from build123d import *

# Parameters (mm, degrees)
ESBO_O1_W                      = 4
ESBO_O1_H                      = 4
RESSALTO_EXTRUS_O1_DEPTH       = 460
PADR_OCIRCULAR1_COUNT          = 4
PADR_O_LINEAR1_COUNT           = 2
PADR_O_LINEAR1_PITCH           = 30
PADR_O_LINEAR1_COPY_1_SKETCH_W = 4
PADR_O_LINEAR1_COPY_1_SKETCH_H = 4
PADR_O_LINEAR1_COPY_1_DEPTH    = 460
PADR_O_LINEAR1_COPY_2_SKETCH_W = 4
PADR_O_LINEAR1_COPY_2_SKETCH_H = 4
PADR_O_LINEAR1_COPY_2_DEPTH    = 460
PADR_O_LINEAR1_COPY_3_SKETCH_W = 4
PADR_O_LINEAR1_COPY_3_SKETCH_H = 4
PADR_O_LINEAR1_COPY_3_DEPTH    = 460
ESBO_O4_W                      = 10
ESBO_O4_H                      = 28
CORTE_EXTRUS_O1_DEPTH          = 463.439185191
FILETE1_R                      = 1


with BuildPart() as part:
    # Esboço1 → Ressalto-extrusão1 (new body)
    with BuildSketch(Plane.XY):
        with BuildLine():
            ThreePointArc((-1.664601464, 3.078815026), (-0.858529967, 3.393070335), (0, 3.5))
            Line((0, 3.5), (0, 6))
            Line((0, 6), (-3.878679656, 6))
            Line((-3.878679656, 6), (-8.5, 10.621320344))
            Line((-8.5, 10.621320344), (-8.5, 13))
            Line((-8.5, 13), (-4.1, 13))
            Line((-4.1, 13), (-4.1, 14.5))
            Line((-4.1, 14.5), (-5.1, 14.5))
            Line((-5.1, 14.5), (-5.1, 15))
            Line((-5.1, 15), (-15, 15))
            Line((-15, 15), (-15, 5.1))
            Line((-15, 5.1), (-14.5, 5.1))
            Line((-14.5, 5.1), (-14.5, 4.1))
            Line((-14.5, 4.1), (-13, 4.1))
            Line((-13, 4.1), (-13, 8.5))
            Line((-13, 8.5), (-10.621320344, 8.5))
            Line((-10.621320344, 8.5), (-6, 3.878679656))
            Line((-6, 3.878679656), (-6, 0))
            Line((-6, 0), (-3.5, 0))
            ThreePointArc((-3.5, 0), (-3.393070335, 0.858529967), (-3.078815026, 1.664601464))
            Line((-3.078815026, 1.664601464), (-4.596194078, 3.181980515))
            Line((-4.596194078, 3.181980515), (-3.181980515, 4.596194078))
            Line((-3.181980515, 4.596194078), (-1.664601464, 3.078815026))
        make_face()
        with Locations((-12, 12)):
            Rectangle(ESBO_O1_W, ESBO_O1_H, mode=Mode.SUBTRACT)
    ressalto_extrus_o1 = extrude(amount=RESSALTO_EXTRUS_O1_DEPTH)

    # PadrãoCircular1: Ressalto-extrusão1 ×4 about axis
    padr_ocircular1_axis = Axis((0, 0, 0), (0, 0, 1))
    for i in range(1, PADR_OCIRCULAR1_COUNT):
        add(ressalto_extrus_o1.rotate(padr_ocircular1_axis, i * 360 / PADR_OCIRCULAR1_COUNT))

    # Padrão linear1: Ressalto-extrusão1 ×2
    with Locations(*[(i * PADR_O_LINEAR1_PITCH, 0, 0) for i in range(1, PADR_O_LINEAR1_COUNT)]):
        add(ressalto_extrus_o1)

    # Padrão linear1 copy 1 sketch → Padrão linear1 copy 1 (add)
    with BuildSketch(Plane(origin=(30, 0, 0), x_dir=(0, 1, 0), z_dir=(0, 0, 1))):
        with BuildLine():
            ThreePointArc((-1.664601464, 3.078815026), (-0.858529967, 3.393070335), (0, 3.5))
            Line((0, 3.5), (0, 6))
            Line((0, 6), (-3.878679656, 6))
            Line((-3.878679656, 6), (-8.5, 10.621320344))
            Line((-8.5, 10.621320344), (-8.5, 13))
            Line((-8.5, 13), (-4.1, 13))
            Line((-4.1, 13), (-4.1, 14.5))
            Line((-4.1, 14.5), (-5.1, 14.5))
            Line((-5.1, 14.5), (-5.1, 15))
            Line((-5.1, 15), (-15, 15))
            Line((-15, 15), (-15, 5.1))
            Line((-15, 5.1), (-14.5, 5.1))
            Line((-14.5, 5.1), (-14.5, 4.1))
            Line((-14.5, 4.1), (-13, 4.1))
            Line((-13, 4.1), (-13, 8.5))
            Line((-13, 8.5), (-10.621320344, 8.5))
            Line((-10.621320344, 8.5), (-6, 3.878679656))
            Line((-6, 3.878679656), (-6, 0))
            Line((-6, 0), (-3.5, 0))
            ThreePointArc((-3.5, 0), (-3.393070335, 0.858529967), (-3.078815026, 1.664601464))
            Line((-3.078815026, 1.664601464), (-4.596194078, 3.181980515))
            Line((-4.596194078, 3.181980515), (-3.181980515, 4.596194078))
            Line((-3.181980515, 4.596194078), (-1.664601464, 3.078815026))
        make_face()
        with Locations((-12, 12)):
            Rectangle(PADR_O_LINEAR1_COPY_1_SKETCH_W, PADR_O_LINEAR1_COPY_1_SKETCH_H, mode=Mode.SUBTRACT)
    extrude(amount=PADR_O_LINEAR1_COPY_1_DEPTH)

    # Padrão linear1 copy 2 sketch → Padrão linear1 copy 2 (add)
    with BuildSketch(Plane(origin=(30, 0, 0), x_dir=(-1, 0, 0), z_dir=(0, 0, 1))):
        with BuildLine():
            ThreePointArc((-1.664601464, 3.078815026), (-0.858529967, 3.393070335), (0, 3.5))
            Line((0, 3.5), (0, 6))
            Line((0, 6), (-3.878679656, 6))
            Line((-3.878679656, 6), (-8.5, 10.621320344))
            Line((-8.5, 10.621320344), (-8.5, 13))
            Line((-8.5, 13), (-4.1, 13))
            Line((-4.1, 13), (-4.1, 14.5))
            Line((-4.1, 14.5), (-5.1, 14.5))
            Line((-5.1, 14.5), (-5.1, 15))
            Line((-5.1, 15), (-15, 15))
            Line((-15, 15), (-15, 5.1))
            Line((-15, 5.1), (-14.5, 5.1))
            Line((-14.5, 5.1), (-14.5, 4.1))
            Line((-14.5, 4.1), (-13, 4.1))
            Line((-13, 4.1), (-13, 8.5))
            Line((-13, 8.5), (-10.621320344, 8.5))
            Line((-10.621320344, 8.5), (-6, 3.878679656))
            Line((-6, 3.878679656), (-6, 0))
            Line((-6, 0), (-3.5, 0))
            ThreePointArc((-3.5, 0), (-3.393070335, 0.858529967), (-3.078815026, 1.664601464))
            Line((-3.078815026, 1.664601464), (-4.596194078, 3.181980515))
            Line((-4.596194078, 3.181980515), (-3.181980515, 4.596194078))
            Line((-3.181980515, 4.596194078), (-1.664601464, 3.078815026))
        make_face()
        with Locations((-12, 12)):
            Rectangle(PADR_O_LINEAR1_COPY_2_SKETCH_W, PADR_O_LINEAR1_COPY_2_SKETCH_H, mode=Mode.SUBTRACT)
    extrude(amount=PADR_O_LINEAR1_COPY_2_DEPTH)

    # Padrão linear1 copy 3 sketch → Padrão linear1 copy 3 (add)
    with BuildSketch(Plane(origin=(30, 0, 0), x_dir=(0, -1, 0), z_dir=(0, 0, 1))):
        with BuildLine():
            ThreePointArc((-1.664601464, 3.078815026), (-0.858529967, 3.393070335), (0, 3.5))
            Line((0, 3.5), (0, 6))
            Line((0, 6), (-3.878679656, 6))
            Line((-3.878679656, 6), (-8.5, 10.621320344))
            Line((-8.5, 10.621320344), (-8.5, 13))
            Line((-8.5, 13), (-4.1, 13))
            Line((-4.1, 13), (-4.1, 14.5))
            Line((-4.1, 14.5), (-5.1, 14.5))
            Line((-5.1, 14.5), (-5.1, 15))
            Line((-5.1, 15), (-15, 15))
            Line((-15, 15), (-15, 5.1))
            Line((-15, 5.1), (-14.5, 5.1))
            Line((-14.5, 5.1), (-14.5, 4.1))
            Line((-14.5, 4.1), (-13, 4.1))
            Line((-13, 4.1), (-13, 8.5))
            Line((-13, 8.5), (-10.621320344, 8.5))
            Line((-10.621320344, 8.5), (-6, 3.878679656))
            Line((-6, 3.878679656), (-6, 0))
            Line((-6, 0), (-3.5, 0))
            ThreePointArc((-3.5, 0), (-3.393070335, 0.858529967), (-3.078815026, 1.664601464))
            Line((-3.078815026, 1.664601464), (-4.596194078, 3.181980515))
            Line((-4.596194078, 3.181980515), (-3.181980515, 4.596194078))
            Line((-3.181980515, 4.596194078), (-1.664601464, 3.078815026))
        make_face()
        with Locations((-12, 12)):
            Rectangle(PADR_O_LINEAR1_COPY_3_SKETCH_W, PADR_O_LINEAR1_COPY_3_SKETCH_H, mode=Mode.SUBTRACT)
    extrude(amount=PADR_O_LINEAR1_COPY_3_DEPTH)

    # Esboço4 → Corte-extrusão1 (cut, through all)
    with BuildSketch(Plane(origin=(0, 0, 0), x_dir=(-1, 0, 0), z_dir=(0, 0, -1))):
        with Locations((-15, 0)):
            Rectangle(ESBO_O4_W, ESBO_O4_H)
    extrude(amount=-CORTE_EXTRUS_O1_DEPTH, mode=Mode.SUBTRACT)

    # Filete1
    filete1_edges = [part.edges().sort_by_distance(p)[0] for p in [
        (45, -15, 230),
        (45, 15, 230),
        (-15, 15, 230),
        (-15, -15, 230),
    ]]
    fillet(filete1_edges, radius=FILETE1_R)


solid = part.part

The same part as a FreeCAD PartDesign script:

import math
import FreeCAD as App
import Part
import Sketcher
from FreeCAD import Vector
Q = App.Units.Quantity


def edges_at(feature, points):
    """Names of the edges that pass closest to the given points."""
    edges = feature.Shape.Edges
    near = lambda p: min(range(len(edges)), key=lambda i: edges[i].distToShape(Part.Vertex(*p))[0])
    return sorted({f"Edge{near(p) + 1}" for p in points})


def add_polygon(sketch, points):
    """Adds a closed chain of lines whose ends are joined by coincident constraints."""
    first, n = sketch.GeometryCount, len(points)
    for a, b in zip(points, points[1:] + points[:1]):
        sketch.addGeometry(Part.LineSegment(App.Vector(*a, 0), App.Vector(*b, 0)), False)
    for i in range(n):
        sketch.addConstraint(Sketcher.Constraint("Coincident", first + i, 2, first + (i + 1) % n, 1))

doc = App.newDocument("Part")
body = doc.addObject("PartDesign::Body", "Body")

sketch1 = body.newObject("Sketcher::SketchObject", "Sketch")
sketch1.AttachmentSupport = (doc.getObject("XY_Plane"), [""])
sketch1.MapMode = "FlatFace"
sketch1.addGeometry(Part.ArcOfCircle(Part.Circle(Vector(0, 0, 0), Vector(0, 0, 1), 3.5), math.radians(90), math.radians(118)), False)
sketch1.addGeometry(Part.LineSegment(Vector(0, 3.5, 0), Vector(0, 6, 0)), False)
sketch1.addGeometry(Part.LineSegment(Vector(0, 6, 0), Vector(-3.9, 6, 0)), False)
sketch1.addGeometry(Part.LineSegment(Vector(-3.9, 6, 0), Vector(-8.5, 10.6, 0)), False)
sketch1.addGeometry(Part.LineSegment(Vector(-8.5, 10.6, 0), Vector(-8.5, 13, 0)), False)
sketch1.addGeometry(Part.LineSegment(Vector(-8.5, 13, 0), Vector(-4.1, 13, 0)), False)
sketch1.addGeometry(Part.LineSegment(Vector(-4.1, 13, 0), Vector(-4.1, 14.5, 0)), False)
sketch1.addGeometry(Part.LineSegment(Vector(-4.1, 14.5, 0), Vector(-5.1, 14.5, 0)), False)
sketch1.addGeometry(Part.LineSegment(Vector(-5.1, 14.5, 0), Vector(-5.1, 15, 0)), False)
sketch1.addGeometry(Part.LineSegment(Vector(-5.1, 15, 0), Vector(-15, 15, 0)), False)
sketch1.addGeometry(Part.LineSegment(Vector(-15, 15, 0), Vector(-15, 5.1, 0)), False)
sketch1.addGeometry(Part.LineSegment(Vector(-15, 5.1, 0), Vector(-14.5, 5.1, 0)), False)
sketch1.addGeometry(Part.LineSegment(Vector(-14.5, 5.1, 0), Vector(-14.5, 4.1, 0)), False)
sketch1.addGeometry(Part.LineSegment(Vector(-14.5, 4.1, 0), Vector(-13, 4.1, 0)), False)
sketch1.addGeometry(Part.LineSegment(Vector(-13, 4.1, 0), Vector(-13, 8.5, 0)), False)
sketch1.addGeometry(Part.LineSegment(Vector(-13, 8.5, 0), Vector(-10.6, 8.5, 0)), False)
sketch1.addGeometry(Part.LineSegment(Vector(-10.6, 8.5, 0), Vector(-6, 3.9, 0)), False)
sketch1.addGeometry(Part.LineSegment(Vector(-6, 3.9, 0), Vector(-6, 0, 0)), False)
sketch1.addGeometry(Part.LineSegment(Vector(-6, 0, 0), Vector(-3.5, 0, 0)), False)
sketch1.addGeometry(Part.ArcOfCircle(Part.Circle(Vector(0, 0, 0), Vector(0, 0, 1), 3.5), math.radians(152), math.radians(180)), False)
sketch1.addGeometry(Part.LineSegment(Vector(-3.1, 1.7, 0), Vector(-4.6, 3.2, 0)), False)
sketch1.addGeometry(Part.LineSegment(Vector(-4.6, 3.2, 0), Vector(-3.2, 4.6, 0)), False)
sketch1.addGeometry(Part.LineSegment(Vector(-3.2, 4.6, 0), Vector(-1.7, 3.1, 0)), False)
add_polygon(sketch1, [(-10, 10), (-14, 10), (-14, 14), (-10, 14)])
sketch1.addConstraint([
    Sketcher.Constraint("Coincident", 0, 1, 1, 1),
    Sketcher.Constraint("Coincident", 1, 2, 2, 1),
    Sketcher.Constraint("Coincident", 2, 2, 3, 1),
    Sketcher.Constraint("Coincident", 3, 2, 4, 1),
    Sketcher.Constraint("Coincident", 4, 2, 5, 1),
    Sketcher.Constraint("Coincident", 5, 2, 6, 1),
    Sketcher.Constraint("Coincident", 6, 2, 7, 1),
    Sketcher.Constraint("Coincident", 7, 2, 8, 1),
    Sketcher.Constraint("Coincident", 8, 2, 9, 1),
    Sketcher.Constraint("Coincident", 9, 2, 10, 1),
    Sketcher.Constraint("Coincident", 10, 2, 11, 1),
    Sketcher.Constraint("Coincident", 11, 2, 12, 1),
    Sketcher.Constraint("Coincident", 12, 2, 13, 1),
    Sketcher.Constraint("Coincident", 13, 2, 14, 1),
    Sketcher.Constraint("Coincident", 14, 2, 15, 1),
    Sketcher.Constraint("Coincident", 15, 2, 16, 1),
    Sketcher.Constraint("Coincident", 16, 2, 17, 1),
    Sketcher.Constraint("Coincident", 17, 2, 18, 1),
    Sketcher.Constraint("Coincident", 18, 2, 19, 2),
    Sketcher.Constraint("Coincident", 19, 1, 20, 1),
    Sketcher.Constraint("Coincident", 20, 2, 21, 1),
    Sketcher.Constraint("Coincident", 21, 2, 22, 1),
    Sketcher.Constraint("Coincident", 22, 2, 0, 2),
    Sketcher.Constraint("Vertical", 1),
    Sketcher.Constraint("Horizontal", 2),
    Sketcher.Constraint("Vertical", 4),
    Sketcher.Constraint("Horizontal", 5),
    Sketcher.Constraint("Vertical", 6),
    Sketcher.Constraint("Horizontal", 7),
    Sketcher.Constraint("Vertical", 8),
    Sketcher.Constraint("Horizontal", 9),
    Sketcher.Constraint("Vertical", 10),
    Sketcher.Constraint("Horizontal", 11),
    Sketcher.Constraint("Vertical", 12),
    Sketcher.Constraint("Horizontal", 13),
    Sketcher.Constraint("Vertical", 14),
    Sketcher.Constraint("Horizontal", 15),
    Sketcher.Constraint("Vertical", 17),
    Sketcher.Constraint("Horizontal", 18),
    Sketcher.Constraint("Horizontal", 23),
    Sketcher.Constraint("Vertical", 24),
    Sketcher.Constraint("Horizontal", 25),
    Sketcher.Constraint("Vertical", 26),
    Sketcher.Constraint("Coincident", 0, 3, -1, 1),
    Sketcher.Constraint("Coincident", 19, 3, -1, 1),
    Sketcher.Constraint("Equal", 0, 19),
    Sketcher.Constraint("PointOnObject", 0, 1, -2),
    Sketcher.Constraint("PointOnObject", 17, 2, -1),
    Sketcher.Constraint("Parallel", 3, 16),
    Sketcher.Constraint("Parallel", 16, 20),
    Sketcher.Constraint("Perpendicular", 20, 21),
    Sketcher.Constraint("Perpendicular", 21, 22),
    Sketcher.Constraint("Equal", 18, 1),
    Sketcher.Constraint("Equal", 15, 4),
    Sketcher.Constraint("Equal", 13, 6),
    Sketcher.Constraint("Equal", 11, 8),
    Sketcher.Constraint("Equal", 9, 10),
    Sketcher.Constraint("Equal", 7, 12),
    Sketcher.Constraint("Equal", 5, 14),
    Sketcher.Constraint("Equal", 2, 17),
    Sketcher.Constraint("Equal", 25, 24),
    Sketcher.Constraint("Equal", 20, 22),
    Sketcher.Constraint("Radius", 0, Q("3.5 mm")),
    Sketcher.Constraint("DistanceX", 7, 2, 7, 1, Q("1 mm")),
    Sketcher.Constraint("DistanceX", 23, 2, 23, 1, Q("4 mm")),
    Sketcher.Constraint("Angle", 3, Q("135 deg")),
    Sketcher.Constraint("Distance", 21, Q("2 mm")),
    Sketcher.Constraint("DistanceX", 5, 1, 5, 2, Q("4.4 mm")),
    Sketcher.Constraint("DistanceX", 9, 2, 9, 1, Q("9.9 mm")),
    Sketcher.Constraint("DistanceX", 11, 1, 11, 2, Q("0.5 mm")),
    Sketcher.Constraint("DistanceX", 13, 1, 13, 2, Q("1.5 mm")),
    Sketcher.Constraint("DistanceX", 18, 1, 18, 2, Q("2.5 mm")),
    Sketcher.Constraint("DistanceY", -1, 1, 4, 2, Q("13 mm")),
    Sketcher.Constraint("DistanceX", 23, 2, -1, 1, Q("14 mm")),
    Sketcher.Constraint("DistanceY", -1, 1, 23, 2, Q("10 mm")),
    Sketcher.Constraint("Distance", 20, Q("2.145898 mm")),
    Sketcher.Constraint("DistanceX", 2, 2, 2, 1, Q("3.87868 mm")),
])
pad1 = body.newObject("PartDesign::Pad", "Pad")
pad1.Profile = sketch1
pad1.Length = 460
doc.recompute()

polarpattern = body.newObject("PartDesign::PolarPattern", "PolarPattern")
polarpattern.Originals = [pad1]
polarpattern.Axis = (doc.getObject("Z_Axis"), [""])
polarpattern.Angle = 360
polarpattern.Occurrences = 4
body.Tip = polarpattern
doc.recompute()

linearpattern = body.newObject("PartDesign::LinearPattern", "LinearPattern")
linearpattern.Originals = [pad1]
linearpattern.Direction = (doc.getObject("X_Axis"), [""])
linearpattern.Mode = "offset"
linearpattern.Offset = 30
linearpattern.Occurrences = 2
body.Tip = linearpattern

sketch2 = body.newObject("Sketcher::SketchObject", "Sketch001")
sketch2.AttachmentSupport = (doc.getObject("XY_Plane"), [""])
sketch2.MapMode = "FlatFace"
sketch2.addGeometry(Part.ArcOfCircle(Part.Circle(Vector(30, 0, 0), Vector(0, 0, 1), 3.5), math.radians(180), math.radians(208)), False)
sketch2.addGeometry(Part.LineSegment(Vector(26.5, 0, 0), Vector(24, 0, 0)), False)
sketch2.addGeometry(Part.LineSegment(Vector(24, 0, 0), Vector(24, -3.9, 0)), False)
sketch2.addGeometry(Part.LineSegment(Vector(24, -3.9, 0), Vector(19.4, -8.5, 0)), False)
sketch2.addGeometry(Part.LineSegment(Vector(19.4, -8.5, 0), Vector(17, -8.5, 0)), False)
sketch2.addGeometry(Part.LineSegment(Vector(17, -8.5, 0), Vector(17, -4.1, 0)), False)
sketch2.addGeometry(Part.LineSegment(Vector(17, -4.1, 0), Vector(15.5, -4.1, 0)), False)
sketch2.addGeometry(Part.LineSegment(Vector(15.5, -4.1, 0), Vector(15.5, -5.1, 0)), False)
sketch2.addGeometry(Part.LineSegment(Vector(15.5, -5.1, 0), Vector(15, -5.1, 0)), False)
sketch2.addGeometry(Part.LineSegment(Vector(15, -5.1, 0), Vector(15, -15, 0)), False)
sketch2.addGeometry(Part.LineSegment(Vector(15, -15, 0), Vector(24.9, -15, 0)), False)
sketch2.addGeometry(Part.LineSegment(Vector(24.9, -15, 0), Vector(24.9, -14.5, 0)), False)
sketch2.addGeometry(Part.LineSegment(Vector(24.9, -14.5, 0), Vector(25.9, -14.5, 0)), False)
sketch2.addGeometry(Part.LineSegment(Vector(25.9, -14.5, 0), Vector(25.9, -13, 0)), False)
sketch2.addGeometry(Part.LineSegment(Vector(25.9, -13, 0), Vector(21.5, -13, 0)), False)
sketch2.addGeometry(Part.LineSegment(Vector(21.5, -13, 0), Vector(21.5, -10.6, 0)), False)
sketch2.addGeometry(Part.LineSegment(Vector(21.5, -10.6, 0), Vector(26.1, -6, 0)), False)
sketch2.addGeometry(Part.LineSegment(Vector(26.1, -6, 0), Vector(30, -6, 0)), False)
sketch2.addGeometry(Part.LineSegment(Vector(30, -6, 0), Vector(30, -3.5, 0)), False)
sketch2.addGeometry(Part.ArcOfCircle(Part.Circle(Vector(30, 0, 0), Vector(0, 0, 1), 3.5), math.radians(-118), math.radians(-90)), False)
sketch2.addGeometry(Part.LineSegment(Vector(28.3, -3.1, 0), Vector(26.8, -4.6, 0)), False)
sketch2.addGeometry(Part.LineSegment(Vector(26.8, -4.6, 0), Vector(25.4, -3.2, 0)), False)
sketch2.addGeometry(Part.LineSegment(Vector(25.4, -3.2, 0), Vector(26.9, -1.7, 0)), False)
add_polygon(sketch2, [(20, -10), (20, -14), (16, -14), (16, -10)])
sketch2.addConstraint([
    Sketcher.Constraint("Coincident", 0, 1, 1, 1),
    Sketcher.Constraint("Coincident", 1, 2, 2, 1),
    Sketcher.Constraint("Coincident", 2, 2, 3, 1),
    Sketcher.Constraint("Coincident", 3, 2, 4, 1),
    Sketcher.Constraint("Coincident", 4, 2, 5, 1),
    Sketcher.Constraint("Coincident", 5, 2, 6, 1),
    Sketcher.Constraint("Coincident", 6, 2, 7, 1),
    Sketcher.Constraint("Coincident", 7, 2, 8, 1),
    Sketcher.Constraint("Coincident", 8, 2, 9, 1),
    Sketcher.Constraint("Coincident", 9, 2, 10, 1),
    Sketcher.Constraint("Coincident", 10, 2, 11, 1),
    Sketcher.Constraint("Coincident", 11, 2, 12, 1),
    Sketcher.Constraint("Coincident", 12, 2, 13, 1),
    Sketcher.Constraint("Coincident", 13, 2, 14, 1),
    Sketcher.Constraint("Coincident", 14, 2, 15, 1),
    Sketcher.Constraint("Coincident", 15, 2, 16, 1),
    Sketcher.Constraint("Coincident", 16, 2, 17, 1),
    Sketcher.Constraint("Coincident", 17, 2, 18, 1),
    Sketcher.Constraint("Coincident", 18, 2, 19, 2),
    Sketcher.Constraint("Coincident", 19, 1, 20, 1),
    Sketcher.Constraint("Coincident", 20, 2, 21, 1),
    Sketcher.Constraint("Coincident", 21, 2, 22, 1),
    Sketcher.Constraint("Coincident", 22, 2, 0, 2),
    Sketcher.Constraint("Horizontal", 1),
    Sketcher.Constraint("Vertical", 2),
    Sketcher.Constraint("Horizontal", 4),
    Sketcher.Constraint("Vertical", 5),
    Sketcher.Constraint("Horizontal", 6),
    Sketcher.Constraint("Vertical", 7),
    Sketcher.Constraint("Horizontal", 8),
    Sketcher.Constraint("Vertical", 9),
    Sketcher.Constraint("Horizontal", 10),
    Sketcher.Constraint("Vertical", 11),
    Sketcher.Constraint("Horizontal", 12),
    Sketcher.Constraint("Vertical", 13),
    Sketcher.Constraint("Horizontal", 14),
    Sketcher.Constraint("Vertical", 15),
    Sketcher.Constraint("Horizontal", 17),
    Sketcher.Constraint("Vertical", 18),
    Sketcher.Constraint("Vertical", 23),
    Sketcher.Constraint("Horizontal", 24),
    Sketcher.Constraint("Vertical", 25),
    Sketcher.Constraint("Horizontal", 26),
    Sketcher.Constraint("Coincident", 19, 3, 0, 3),
    Sketcher.Constraint("Equal", 0, 19),
    Sketcher.Constraint("PointOnObject", 0, 3, -1),
    Sketcher.Constraint("PointOnObject", 0, 1, -1),
    Sketcher.Constraint("Parallel", 3, 16),
    Sketcher.Constraint("Parallel", 16, 20),
    Sketcher.Constraint("Perpendicular", 20, 21),
    Sketcher.Constraint("Perpendicular", 21, 22),
    Sketcher.Constraint("Vertical", 19, 3, 17, 2),
    Sketcher.Constraint("Equal", 17, 2),
    Sketcher.Constraint("Equal", 14, 5),
    Sketcher.Constraint("Equal", 12, 7),
    Sketcher.Constraint("Equal", 10, 9),
    Sketcher.Constraint("Equal", 8, 11),
    Sketcher.Constraint("Equal", 6, 13),
    Sketcher.Constraint("Equal", 4, 15),
    Sketcher.Constraint("Equal", 1, 18),
    Sketcher.Constraint("Equal", 26, 23),
    Sketcher.Constraint("Equal", 20, 22),
    Sketcher.Constraint("Radius", 0, Q("3.5 mm")),
    Sketcher.Constraint("DistanceX", 12, 1, 12, 2, Q("1 mm")),
    Sketcher.Constraint("DistanceX", 24, 2, 24, 1, Q("4 mm")),
    Sketcher.Constraint("Angle", 3, Q("-135 deg")),
    Sketcher.Constraint("Distance", 21, Q("2 mm")),
    Sketcher.Constraint("DistanceX", 1, 2, 1, 1, Q("2.5 mm")),
    Sketcher.Constraint("DistanceX", 6, 2, 6, 1, Q("1.5 mm")),
    Sketcher.Constraint("DistanceX", 8, 2, 8, 1, Q("0.5 mm")),
    Sketcher.Constraint("DistanceX", 10, 1, 10, 2, Q("9.9 mm")),
    Sketcher.Constraint("DistanceX", 14, 2, 14, 1, Q("4.4 mm")),
    Sketcher.Constraint("DistanceX", -1, 1, 0, 3, Q("30 mm")),
    Sketcher.Constraint("DistanceX", -1, 1, 4, 2, Q("17 mm")),
    Sketcher.Constraint("DistanceX", -1, 1, 23, 2, Q("20 mm")),
    Sketcher.Constraint("DistanceY", 23, 2, -1, 1, Q("14 mm")),
    Sketcher.Constraint("Distance", 20, Q("2.145898 mm")),
    Sketcher.Constraint("DistanceX", 4, 2, 4, 1, Q("2.37868 mm")),
])
pad2 = body.newObject("PartDesign::Pad", "Pad001")
pad2.Profile = sketch2
pad2.Length = 460

sketch3 = body.newObject("Sketcher::SketchObject", "Sketch002")
sketch3.AttachmentSupport = (doc.getObject("XY_Plane"), [""])
sketch3.MapMode = "FlatFace"
sketch3.addGeometry(Part.ArcOfCircle(Part.Circle(Vector(30, 0, 0), Vector(0, 0, 1), 3.5), math.radians(-90), math.radians(-62)), False)
sketch3.addGeometry(Part.LineSegment(Vector(30, -3.5, 0), Vector(30, -6, 0)), False)
sketch3.addGeometry(Part.LineSegment(Vector(30, -6, 0), Vector(33.9, -6, 0)), False)
sketch3.addGeometry(Part.LineSegment(Vector(33.9, -6, 0), Vector(38.5, -10.6, 0)), False)
sketch3.addGeometry(Part.LineSegment(Vector(38.5, -10.6, 0), Vector(38.5, -13, 0)), False)
sketch3.addGeometry(Part.LineSegment(Vector(38.5, -13, 0), Vector(34.1, -13, 0)), False)
sketch3.addGeometry(Part.LineSegment(Vector(34.1, -13, 0), Vector(34.1, -14.5, 0)), False)
sketch3.addGeometry(Part.LineSegment(Vector(34.1, -14.5, 0), Vector(35.1, -14.5, 0)), False)
sketch3.addGeometry(Part.LineSegment(Vector(35.1, -14.5, 0), Vector(35.1, -15, 0)), False)
sketch3.addGeometry(Part.LineSegment(Vector(35.1, -15, 0), Vector(45, -15, 0)), False)
sketch3.addGeometry(Part.LineSegment(Vector(45, -15, 0), Vector(45, -5.1, 0)), False)
sketch3.addGeometry(Part.LineSegment(Vector(45, -5.1, 0), Vector(44.5, -5.1, 0)), False)
sketch3.addGeometry(Part.LineSegment(Vector(44.5, -5.1, 0), Vector(44.5, -4.1, 0)), False)
sketch3.addGeometry(Part.LineSegment(Vector(44.5, -4.1, 0), Vector(43, -4.1, 0)), False)
sketch3.addGeometry(Part.LineSegment(Vector(43, -4.1, 0), Vector(43, -8.5, 0)), False)
sketch3.addGeometry(Part.LineSegment(Vector(43, -8.5, 0), Vector(40.6, -8.5, 0)), False)
sketch3.addGeometry(Part.LineSegment(Vector(40.6, -8.5, 0), Vector(36, -3.9, 0)), False)
sketch3.addGeometry(Part.LineSegment(Vector(36, -3.9, 0), Vector(36, 0, 0)), False)
sketch3.addGeometry(Part.LineSegment(Vector(36, 0, 0), Vector(33.5, 0, 0)), False)
sketch3.addGeometry(Part.ArcOfCircle(Part.Circle(Vector(30, 0, 0), Vector(0, 0, 1), 3.5), math.radians(-28), math.radians(0)), False)
sketch3.addGeometry(Part.LineSegment(Vector(33.1, -1.7, 0), Vector(34.6, -3.2, 0)), False)
sketch3.addGeometry(Part.LineSegment(Vector(34.6, -3.2, 0), Vector(33.2, -4.6, 0)), False)
sketch3.addGeometry(Part.LineSegment(Vector(33.2, -4.6, 0), Vector(31.7, -3.1, 0)), False)
add_polygon(sketch3, [(40, -10), (44, -10), (44, -14), (40, -14)])
sketch3.addConstraint([
    Sketcher.Constraint("Coincident", 0, 1, 1, 1),
    Sketcher.Constraint("Coincident", 1, 2, 2, 1),
    Sketcher.Constraint("Coincident", 2, 2, 3, 1),
    Sketcher.Constraint("Coincident", 3, 2, 4, 1),
    Sketcher.Constraint("Coincident", 4, 2, 5, 1),
    Sketcher.Constraint("Coincident", 5, 2, 6, 1),
    Sketcher.Constraint("Coincident", 6, 2, 7, 1),
    Sketcher.Constraint("Coincident", 7, 2, 8, 1),
    Sketcher.Constraint("Coincident", 8, 2, 9, 1),
    Sketcher.Constraint("Coincident", 9, 2, 10, 1),
    Sketcher.Constraint("Coincident", 10, 2, 11, 1),
    Sketcher.Constraint("Coincident", 11, 2, 12, 1),
    Sketcher.Constraint("Coincident", 12, 2, 13, 1),
    Sketcher.Constraint("Coincident", 13, 2, 14, 1),
    Sketcher.Constraint("Coincident", 14, 2, 15, 1),
    Sketcher.Constraint("Coincident", 15, 2, 16, 1),
    Sketcher.Constraint("Coincident", 16, 2, 17, 1),
    Sketcher.Constraint("Coincident", 17, 2, 18, 1),
    Sketcher.Constraint("Coincident", 18, 2, 19, 2),
    Sketcher.Constraint("Coincident", 19, 1, 20, 1),
    Sketcher.Constraint("Coincident", 20, 2, 21, 1),
    Sketcher.Constraint("Coincident", 21, 2, 22, 1),
    Sketcher.Constraint("Coincident", 22, 2, 0, 2),
    Sketcher.Constraint("Vertical", 1),
    Sketcher.Constraint("Horizontal", 2),
    Sketcher.Constraint("Vertical", 4),
    Sketcher.Constraint("Horizontal", 5),
    Sketcher.Constraint("Vertical", 6),
    Sketcher.Constraint("Horizontal", 7),
    Sketcher.Constraint("Vertical", 8),
    Sketcher.Constraint("Horizontal", 9),
    Sketcher.Constraint("Vertical", 10),
    Sketcher.Constraint("Horizontal", 11),
    Sketcher.Constraint("Vertical", 12),
    Sketcher.Constraint("Horizontal", 13),
    Sketcher.Constraint("Vertical", 14),
    Sketcher.Constraint("Horizontal", 15),
    Sketcher.Constraint("Vertical", 17),
    Sketcher.Constraint("Horizontal", 18),
    Sketcher.Constraint("Horizontal", 23),
    Sketcher.Constraint("Vertical", 24),
    Sketcher.Constraint("Horizontal", 25),
    Sketcher.Constraint("Vertical", 26),
    Sketcher.Constraint("Coincident", 19, 3, 0, 3),
    Sketcher.Constraint("Equal", 0, 19),
    Sketcher.Constraint("PointOnObject", 0, 3, -1),
    Sketcher.Constraint("PointOnObject", 17, 2, -1),
    Sketcher.Constraint("Parallel", 3, 16),
    Sketcher.Constraint("Parallel", 16, 20),
    Sketcher.Constraint("Perpendicular", 20, 21),
    Sketcher.Constraint("Perpendicular", 21, 22),
    Sketcher.Constraint("Vertical", 19, 3, 0, 1),
    Sketcher.Constraint("Equal", 18, 1),
    Sketcher.Constraint("Equal", 15, 4),
    Sketcher.Constraint("Equal", 13, 6),
    Sketcher.Constraint("Equal", 11, 8),
    Sketcher.Constraint("Equal", 9, 10),
    Sketcher.Constraint("Equal", 7, 12),
    Sketcher.Constraint("Equal", 5, 14),
    Sketcher.Constraint("Equal", 2, 17),
    Sketcher.Constraint("Equal", 25, 24),
    Sketcher.Constraint("Equal", 20, 22),
    Sketcher.Constraint("Radius", 0, Q("3.5 mm")),
    Sketcher.Constraint("DistanceX", 7, 1, 7, 2, Q("1 mm")),
    Sketcher.Constraint("DistanceX", 23, 1, 23, 2, Q("4 mm")),
    Sketcher.Constraint("Angle", 3, Q("-45 deg")),
    Sketcher.Constraint("Distance", 21, Q("2 mm")),
    Sketcher.Constraint("DistanceX", 5, 2, 5, 1, Q("4.4 mm")),
    Sketcher.Constraint("DistanceX", 9, 1, 9, 2, Q("9.9 mm")),
    Sketcher.Constraint("DistanceX", 11, 2, 11, 1, Q("0.5 mm")),
    Sketcher.Constraint("DistanceX", 13, 2, 13, 1, Q("1.5 mm")),
    Sketcher.Constraint("DistanceX", 18, 2, 18, 1, Q("2.5 mm")),
    Sketcher.Constraint("DistanceX", -1, 1, 0, 3, Q("30 mm")),
    Sketcher.Constraint("DistanceY", 4, 2, -1, 1, Q("13 mm")),
    Sketcher.Constraint("DistanceX", -1, 1, 23, 2, Q("44 mm")),
    Sketcher.Constraint("DistanceY", 23, 2, -1, 1, Q("10 mm")),
    Sketcher.Constraint("Distance", 20, Q("2.145898 mm")),
    Sketcher.Constraint("DistanceX", 2, 1, 2, 2, Q("3.87868 mm")),
])
pad3 = body.newObject("PartDesign::Pad", "Pad002")
pad3.Profile = sketch3
pad3.Length = 460

sketch4 = body.newObject("Sketcher::SketchObject", "Sketch003")
sketch4.AttachmentSupport = (doc.getObject("XY_Plane"), [""])
sketch4.MapMode = "FlatFace"
sketch4.addGeometry(Part.ArcOfCircle(Part.Circle(Vector(30, 0, 0), Vector(0, 0, 1), 3.5), math.radians(0), math.radians(28)), False)
sketch4.addGeometry(Part.LineSegment(Vector(33.5, 0, 0), Vector(36, 0, 0)), False)
sketch4.addGeometry(Part.LineSegment(Vector(36, 0, 0), Vector(36, 3.9, 0)), False)
sketch4.addGeometry(Part.LineSegment(Vector(36, 3.9, 0), Vector(40.6, 8.5, 0)), False)
sketch4.addGeometry(Part.LineSegment(Vector(40.6, 8.5, 0), Vector(43, 8.5, 0)), False)
sketch4.addGeometry(Part.LineSegment(Vector(43, 8.5, 0), Vector(43, 4.1, 0)), False)
sketch4.addGeometry(Part.LineSegment(Vector(43, 4.1, 0), Vector(44.5, 4.1, 0)), False)
sketch4.addGeometry(Part.LineSegment(Vector(44.5, 4.1, 0), Vector(44.5, 5.1, 0)), False)
sketch4.addGeometry(Part.LineSegment(Vector(44.5, 5.1, 0), Vector(45, 5.1, 0)), False)
sketch4.addGeometry(Part.LineSegment(Vector(45, 5.1, 0), Vector(45, 15, 0)), False)
sketch4.addGeometry(Part.LineSegment(Vector(45, 15, 0), Vector(35.1, 15, 0)), False)
sketch4.addGeometry(Part.LineSegment(Vector(35.1, 15, 0), Vector(35.1, 14.5, 0)), False)
sketch4.addGeometry(Part.LineSegment(Vector(35.1, 14.5, 0), Vector(34.1, 14.5, 0)), False)
sketch4.addGeometry(Part.LineSegment(Vector(34.1, 14.5, 0), Vector(34.1, 13, 0)), False)
sketch4.addGeometry(Part.LineSegment(Vector(34.1, 13, 0), Vector(38.5, 13, 0)), False)
sketch4.addGeometry(Part.LineSegment(Vector(38.5, 13, 0), Vector(38.5, 10.6, 0)), False)
sketch4.addGeometry(Part.LineSegment(Vector(38.5, 10.6, 0), Vector(33.9, 6, 0)), False)
sketch4.addGeometry(Part.LineSegment(Vector(33.9, 6, 0), Vector(30, 6, 0)), False)
sketch4.addGeometry(Part.LineSegment(Vector(30, 6, 0), Vector(30, 3.5, 0)), False)
sketch4.addGeometry(Part.ArcOfCircle(Part.Circle(Vector(30, 0, 0), Vector(0, 0, 1), 3.5), math.radians(62), math.radians(90)), False)
sketch4.addGeometry(Part.LineSegment(Vector(31.7, 3.1, 0), Vector(33.2, 4.6, 0)), False)
sketch4.addGeometry(Part.LineSegment(Vector(33.2, 4.6, 0), Vector(34.6, 3.2, 0)), False)
sketch4.addGeometry(Part.LineSegment(Vector(34.6, 3.2, 0), Vector(33.1, 1.7, 0)), False)
add_polygon(sketch4, [(40, 10), (40, 14), (44, 14), (44, 10)])
sketch4.addConstraint([
    Sketcher.Constraint("Coincident", 0, 1, 1, 1),
    Sketcher.Constraint("Coincident", 1, 2, 2, 1),
    Sketcher.Constraint("Coincident", 2, 2, 3, 1),
    Sketcher.Constraint("Coincident", 3, 2, 4, 1),
    Sketcher.Constraint("Coincident", 4, 2, 5, 1),
    Sketcher.Constraint("Coincident", 5, 2, 6, 1),
    Sketcher.Constraint("Coincident", 6, 2, 7, 1),
    Sketcher.Constraint("Coincident", 7, 2, 8, 1),
    Sketcher.Constraint("Coincident", 8, 2, 9, 1),
    Sketcher.Constraint("Coincident", 9, 2, 10, 1),
    Sketcher.Constraint("Coincident", 10, 2, 11, 1),
    Sketcher.Constraint("Coincident", 11, 2, 12, 1),
    Sketcher.Constraint("Coincident", 12, 2, 13, 1),
    Sketcher.Constraint("Coincident", 13, 2, 14, 1),
    Sketcher.Constraint("Coincident", 14, 2, 15, 1),
    Sketcher.Constraint("Coincident", 15, 2, 16, 1),
    Sketcher.Constraint("Coincident", 16, 2, 17, 1),
    Sketcher.Constraint("Coincident", 17, 2, 18, 1),
    Sketcher.Constraint("Coincident", 18, 2, 19, 2),
    Sketcher.Constraint("Coincident", 19, 1, 20, 1),
    Sketcher.Constraint("Coincident", 20, 2, 21, 1),
    Sketcher.Constraint("Coincident", 21, 2, 22, 1),
    Sketcher.Constraint("Coincident", 22, 2, 0, 2),
    Sketcher.Constraint("Horizontal", 1),
    Sketcher.Constraint("Vertical", 2),
    Sketcher.Constraint("Horizontal", 4),
    Sketcher.Constraint("Vertical", 5),
    Sketcher.Constraint("Horizontal", 6),
    Sketcher.Constraint("Vertical", 7),
    Sketcher.Constraint("Horizontal", 8),
    Sketcher.Constraint("Vertical", 9),
    Sketcher.Constraint("Horizontal", 10),
    Sketcher.Constraint("Vertical", 11),
    Sketcher.Constraint("Horizontal", 12),
    Sketcher.Constraint("Vertical", 13),
    Sketcher.Constraint("Horizontal", 14),
    Sketcher.Constraint("Vertical", 15),
    Sketcher.Constraint("Horizontal", 17),
    Sketcher.Constraint("Vertical", 18),
    Sketcher.Constraint("Vertical", 23),
    Sketcher.Constraint("Horizontal", 24),
    Sketcher.Constraint("Vertical", 25),
    Sketcher.Constraint("Horizontal", 26),
    Sketcher.Constraint("Coincident", 19, 3, 0, 3),
    Sketcher.Constraint("Equal", 0, 19),
    Sketcher.Constraint("PointOnObject", 0, 3, -1),
    Sketcher.Constraint("PointOnObject", 0, 1, -1),
    Sketcher.Constraint("Parallel", 3, 16),
    Sketcher.Constraint("Parallel", 16, 20),
    Sketcher.Constraint("Perpendicular", 20, 21),
    Sketcher.Constraint("Perpendicular", 21, 22),
    Sketcher.Constraint("Vertical", 19, 3, 17, 2),
    Sketcher.Constraint("Equal", 17, 2),
    Sketcher.Constraint("Equal", 14, 5),
    Sketcher.Constraint("Equal", 12, 7),
    Sketcher.Constraint("Equal", 10, 9),
    Sketcher.Constraint("Equal", 8, 11),
    Sketcher.Constraint("Equal", 6, 13),
    Sketcher.Constraint("Equal", 4, 15),
    Sketcher.Constraint("Equal", 1, 18),
    Sketcher.Constraint("Equal", 26, 23),
    Sketcher.Constraint("Equal", 20, 22),
    Sketcher.Constraint("Radius", 0, Q("3.5 mm")),
    Sketcher.Constraint("DistanceX", 12, 2, 12, 1, Q("1 mm")),
    Sketcher.Constraint("DistanceX", 24, 1, 24, 2, Q("4 mm")),
    Sketcher.Constraint("Angle", 3, Q("45 deg")),
    Sketcher.Constraint("Distance", 21, Q("2 mm")),
    Sketcher.Constraint("DistanceX", 1, 1, 1, 2, Q("2.5 mm")),
    Sketcher.Constraint("DistanceX", 6, 1, 6, 2, Q("1.5 mm")),
    Sketcher.Constraint("DistanceX", 8, 1, 8, 2, Q("0.5 mm")),
    Sketcher.Constraint("DistanceX", 10, 2, 10, 1, Q("9.9 mm")),
    Sketcher.Constraint("DistanceX", 14, 1, 14, 2, Q("4.4 mm")),
    Sketcher.Constraint("DistanceX", -1, 1, 0, 3, Q("30 mm")),
    Sketcher.Constraint("DistanceX", -1, 1, 4, 2, Q("43 mm")),
    Sketcher.Constraint("DistanceX", -1, 1, 23, 2, Q("40 mm")),
    Sketcher.Constraint("DistanceY", -1, 1, 23, 2, Q("14 mm")),
    Sketcher.Constraint("Distance", 20, Q("2.145898 mm")),
    Sketcher.Constraint("DistanceX", 4, 1, 4, 2, Q("2.37868 mm")),
])
pad4 = body.newObject("PartDesign::Pad", "Pad003")
pad4.Profile = sketch4
pad4.Length = 460

sketch5 = body.newObject("Sketcher::SketchObject", "Sketch004")
sketch5.AttachmentSupport = (doc.getObject("XY_Plane"), [""])
sketch5.MapMode = "FlatFace"
add_polygon(sketch5, [(20, 14), (20, -14), (10, -14), (10, 14)])
sketch5.addConstraint([
    Sketcher.Constraint("Vertical", 0),
    Sketcher.Constraint("Horizontal", 1),
    Sketcher.Constraint("Vertical", 2),
    Sketcher.Constraint("Horizontal", 3),
    Sketcher.Constraint("DistanceX", 1, 2, 1, 1, Q("10 mm")),
    Sketcher.Constraint("DistanceY", 0, 2, 0, 1, Q("28 mm")),
    Sketcher.Constraint("DistanceX", -1, 1, 0, 2, Q("20 mm")),
    Sketcher.Constraint("DistanceY", 0, 2, -1, 1, Q("14 mm")),
])
pocket1 = body.newObject("PartDesign::Pocket", "Pocket")
pocket1.Profile = sketch5
pocket1.Type = "ThroughAll"
pocket1.Reversed = True
doc.recompute()

fillet = body.newObject("PartDesign::Fillet", "Fillet")
fillet.Base = (pocket1, edges_at(pocket1, [
    (45, -15, 230),
    (45, 15, 230),
    (-15, 15, 230),
    (-15, -15, 230),
]))
fillet.Radius = 1

doc.recompute()
